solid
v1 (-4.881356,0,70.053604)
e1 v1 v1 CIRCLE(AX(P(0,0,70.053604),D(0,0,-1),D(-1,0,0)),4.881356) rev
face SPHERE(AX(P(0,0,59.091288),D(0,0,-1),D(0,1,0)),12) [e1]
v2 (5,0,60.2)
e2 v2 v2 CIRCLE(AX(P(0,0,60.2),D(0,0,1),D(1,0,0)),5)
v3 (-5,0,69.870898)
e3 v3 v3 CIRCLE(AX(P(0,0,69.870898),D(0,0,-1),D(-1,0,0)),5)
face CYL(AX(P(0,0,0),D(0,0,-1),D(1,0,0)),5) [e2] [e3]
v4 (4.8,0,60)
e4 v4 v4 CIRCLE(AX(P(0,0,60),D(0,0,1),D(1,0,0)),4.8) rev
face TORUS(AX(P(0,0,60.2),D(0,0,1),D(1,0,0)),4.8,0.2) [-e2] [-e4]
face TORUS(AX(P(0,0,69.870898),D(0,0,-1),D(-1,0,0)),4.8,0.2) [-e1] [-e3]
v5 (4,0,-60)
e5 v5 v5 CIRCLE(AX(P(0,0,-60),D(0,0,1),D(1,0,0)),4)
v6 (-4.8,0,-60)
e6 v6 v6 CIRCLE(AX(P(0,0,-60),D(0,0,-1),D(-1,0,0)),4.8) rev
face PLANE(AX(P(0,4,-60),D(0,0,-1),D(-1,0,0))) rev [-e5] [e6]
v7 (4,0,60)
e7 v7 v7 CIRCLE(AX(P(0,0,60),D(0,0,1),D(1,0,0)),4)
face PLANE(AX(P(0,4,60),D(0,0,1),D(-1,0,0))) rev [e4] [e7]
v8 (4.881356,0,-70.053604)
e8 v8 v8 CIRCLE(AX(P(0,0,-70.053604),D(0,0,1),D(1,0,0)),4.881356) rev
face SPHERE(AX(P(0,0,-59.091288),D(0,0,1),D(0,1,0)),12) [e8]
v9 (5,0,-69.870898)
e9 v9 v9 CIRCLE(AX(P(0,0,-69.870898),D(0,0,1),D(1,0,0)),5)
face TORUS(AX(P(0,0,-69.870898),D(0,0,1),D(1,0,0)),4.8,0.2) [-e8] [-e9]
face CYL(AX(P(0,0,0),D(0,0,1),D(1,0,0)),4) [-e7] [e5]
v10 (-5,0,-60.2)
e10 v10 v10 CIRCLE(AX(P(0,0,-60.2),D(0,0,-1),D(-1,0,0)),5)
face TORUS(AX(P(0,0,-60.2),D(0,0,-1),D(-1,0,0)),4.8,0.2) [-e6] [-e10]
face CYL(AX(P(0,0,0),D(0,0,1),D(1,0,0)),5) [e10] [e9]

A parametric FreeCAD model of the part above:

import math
import FreeCAD as App
import Part
import Sketcher

V = App.Vector
Q = App.Units.Quantity


def edges_at(feature, points):
    """Names of the edges that pass closest to the given points."""
    edges = feature.Shape.Edges
    near = lambda p: min(range(len(edges)), key=lambda i: edges[i].distToShape(Part.Vertex(*p))[0])
    return sorted({f"Edge{near(p) + 1}" for p in points})

doc = App.newDocument("Part")
body = doc.addObject("PartDesign::Body", "Body")

sketch1 = body.newObject("Sketcher::SketchObject", "Sketch")
sketch1.AttachmentSupport = (doc.getObject("YZ_Plane"), [""])
sketch1.MapMode = "FlatFace"
sketch1.addGeometry(Part.LineSegment(V(0, 0, 0), V(0, -71.1, 0)), False)
sketch1.addGeometry(Part.ArcOfCircle(Part.Circle(V(0, -59.1, 0), V(0, 0, 1), 12), math.radians(-90), math.radians(-65)), False)
sketch1.addGeometry(Part.LineSegment(V(5, -70, 0), V(5, -60, 0)), False)
sketch1.addGeometry(Part.LineSegment(V(5, -60, 0), V(4, -60, 0)), False)
sketch1.addGeometry(Part.LineSegment(V(4, -60, 0), V(4, 0, 0)), False)
sketch1.addGeometry(Part.LineSegment(V(4, 0, 0), V(0, 0, 0)), False)
sketch1.addConstraint(Sketcher.Constraint("Coincident", 0, 2, 1, 1))
sketch1.addConstraint(Sketcher.Constraint("Coincident", 1, 2, 2, 1))
sketch1.addConstraint(Sketcher.Constraint("Coincident", 2, 2, 3, 1))
sketch1.addConstraint(Sketcher.Constraint("Coincident", 3, 2, 4, 1))
sketch1.addConstraint(Sketcher.Constraint("Coincident", 4, 2, 5, 1))
sketch1.addConstraint(Sketcher.Constraint("Coincident", 5, 2, 0, 1))
sketch1.addConstraint(Sketcher.Constraint("Vertical", 0))
sketch1.addConstraint(Sketcher.Constraint("Vertical", 2))
sketch1.addConstraint(Sketcher.Constraint("Horizontal", 3))
sketch1.addConstraint(Sketcher.Constraint("Vertical", 4))
sketch1.addConstraint(Sketcher.Constraint("Horizontal", 5))
sketch1.addConstraint(Sketcher.Constraint("Coincident", 5, 2, -1, 1))
sketch1.addConstraint(Sketcher.Constraint("PointOnObject", 1, 3, -2))
sketch1.addConstraint(Sketcher.Constraint("Radius", 1, Q("12 mm")))
sketch1.addConstraint(Sketcher.Constraint("DistanceX", 3, 2, 3, 1, Q("1 mm")))
sketch1.addConstraint(Sketcher.Constraint("DistanceX", 5, 2, 5, 1, Q("4 mm")))
sketch1.addConstraint(Sketcher.Constraint("DistanceY", 2, 1, 2, 2, Q("10 mm")))
sketch1.addConstraint(Sketcher.Constraint("DistanceY", 4, 1, 4, 2, Q("60 mm")))
revolution = body.newObject("PartDesign::Revolution", "Revolution")
revolution.Profile = sketch1
revolution.ReferenceAxis = (sketch1, ["V_Axis"])
revolution.Angle = 360
body2 = doc.addObject("PartDesign::Body", "Body001")
doc.recompute()

body2.BaseFeature = body
doc.recompute()

mirroring = doc.addObject("Part::Mirroring", "Mirroring")
mirroring.Source = body
mirroring.Base = V(0, 0, 0)
mirroring.Normal = V(0, 0, 1)
body3 = doc.addObject("PartDesign::Body", "Body002")
body3.BaseFeature = mirroring
boolean = body2.newObject("PartDesign::Boolean", "Boolean")
boolean.Type = "Fuse"
boolean.addObjects([body3])
doc.recompute()

fillet = body2.newObject("PartDesign::Fillet", "Fillet")
fillet.Base = (boolean, edges_at(boolean, [
    (-5, 0, 60),
    (-5, 0, 70),
    (-5, 0, -70),
    (-5, 0, -60),
]))
fillet.Radius = 0.2
mirroring.Visibility = False

doc.recompute()
